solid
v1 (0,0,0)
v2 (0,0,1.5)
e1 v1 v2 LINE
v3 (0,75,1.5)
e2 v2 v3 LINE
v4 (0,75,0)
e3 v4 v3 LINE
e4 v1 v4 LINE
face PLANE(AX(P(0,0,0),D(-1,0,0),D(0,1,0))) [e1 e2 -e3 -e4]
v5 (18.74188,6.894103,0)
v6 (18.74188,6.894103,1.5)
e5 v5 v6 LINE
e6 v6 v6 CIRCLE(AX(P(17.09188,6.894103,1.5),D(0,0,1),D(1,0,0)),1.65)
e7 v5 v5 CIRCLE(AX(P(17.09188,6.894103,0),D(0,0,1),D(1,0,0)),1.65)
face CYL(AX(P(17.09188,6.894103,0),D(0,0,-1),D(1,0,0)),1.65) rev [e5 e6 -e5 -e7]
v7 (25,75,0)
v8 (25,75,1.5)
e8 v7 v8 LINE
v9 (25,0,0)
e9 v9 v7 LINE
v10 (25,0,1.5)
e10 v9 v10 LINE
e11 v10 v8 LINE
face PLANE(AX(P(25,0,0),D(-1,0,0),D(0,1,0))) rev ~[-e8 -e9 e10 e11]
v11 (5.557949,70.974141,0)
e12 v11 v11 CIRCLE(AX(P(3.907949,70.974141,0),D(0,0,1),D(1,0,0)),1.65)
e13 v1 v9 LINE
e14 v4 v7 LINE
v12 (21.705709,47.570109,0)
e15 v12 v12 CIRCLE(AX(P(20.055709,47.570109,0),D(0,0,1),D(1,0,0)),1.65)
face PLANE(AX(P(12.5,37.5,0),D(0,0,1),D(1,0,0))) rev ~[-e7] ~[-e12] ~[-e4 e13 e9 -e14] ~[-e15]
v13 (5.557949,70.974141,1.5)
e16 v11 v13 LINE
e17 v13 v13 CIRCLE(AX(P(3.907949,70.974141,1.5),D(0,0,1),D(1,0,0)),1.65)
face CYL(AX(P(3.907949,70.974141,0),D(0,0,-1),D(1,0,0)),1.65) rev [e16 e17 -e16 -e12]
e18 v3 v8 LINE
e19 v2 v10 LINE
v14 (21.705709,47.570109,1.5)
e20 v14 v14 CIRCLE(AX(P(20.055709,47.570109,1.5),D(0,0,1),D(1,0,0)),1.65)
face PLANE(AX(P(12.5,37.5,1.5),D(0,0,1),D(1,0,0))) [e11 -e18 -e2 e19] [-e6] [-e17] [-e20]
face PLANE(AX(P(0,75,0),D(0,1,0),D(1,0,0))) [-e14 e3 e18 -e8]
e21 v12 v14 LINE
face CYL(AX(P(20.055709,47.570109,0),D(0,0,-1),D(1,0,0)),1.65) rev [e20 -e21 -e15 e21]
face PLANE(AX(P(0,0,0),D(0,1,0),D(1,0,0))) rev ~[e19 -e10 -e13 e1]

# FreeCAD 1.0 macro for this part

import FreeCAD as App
import Part
import Sketcher

doc = App.newDocument("Part")
body = doc.addObject("PartDesign::Body", "Body")

sketch1 = body.newObject("Sketcher::SketchObject", "Sketch")
sketch1.AttachmentSupport = (doc.getObject("XY_Plane"), [""])
sketch1.MapMode = "FlatFace"
sketch1.addGeometry(Part.LineSegment(App.Vector(0, 75, 0), App.Vector(0, 0, 0)), False)
sketch1.addGeometry(Part.LineSegment(App.Vector(0, 0, 0), App.Vector(25, 0, 0)), False)
sketch1.addGeometry(Part.LineSegment(App.Vector(25, 0, 0), App.Vector(25, 75, 0)), False)
sketch1.addGeometry(Part.LineSegment(App.Vector(25, 75, 0), App.Vector(0, 75, 0)), False)
sketch1.addGeometry(Part.Circle(App.Vector(17.1, 6.9, 0), App.Vector(0, 0, 1), 1.6), False)
sketch1.addGeometry(Part.Circle(App.Vector(3.9, 71, 0), App.Vector(0, 0, 1), 1.6), False)
sketch1.addGeometry(Part.Circle(App.Vector(20.1, 47.6, 0), App.Vector(0, 0, 1), 1.6), False)
sketch1.addConstraint(Sketcher.Constraint("Coincident", 0, 2, 1, 1))
sketch1.addConstraint(Sketcher.Constraint("Coincident", 1, 2, 2, 1))
sketch1.addConstraint(Sketcher.Constraint("Coincident", 2, 2, 3, 1))
sketch1.addConstraint(Sketcher.Constraint("Coincident", 3, 2, 0, 1))
sketch1.addConstraint(Sketcher.Constraint("Vertical", 0))
sketch1.addConstraint(Sketcher.Constraint("Horizontal", 1))
sketch1.addConstraint(Sketcher.Constraint("Vertical", 2))
sketch1.addConstraint(Sketcher.Constraint("Horizontal", 3))
sketch1.addConstraint(Sketcher.Constraint("Coincident", 0, 2, -1, 1))
sketch1.addConstraint(Sketcher.Constraint("Equal", 4, 5))
sketch1.addConstraint(Sketcher.Constraint("Equal", 5, 6))
sketch1.addConstraint(Sketcher.Constraint("Diameter", 4, 3.3))
sketch1.addConstraint(Sketcher.Constraint("DistanceX", 1, 1, 1, 2, 25.0))
sketch1.addConstraint(Sketcher.Constraint("DistanceY", 0, 2, 0, 1, 75.0))
sketch1.addConstraint(Sketcher.Constraint("DistanceX", -1, 1, 4, 3, 17.09188))
sketch1.addConstraint(Sketcher.Constraint("DistanceX", -1, 1, 5, 3, 3.907949))
sketch1.addConstraint(Sketcher.Constraint("DistanceY", -1, 1, 5, 3, 70.974141))
sketch1.addConstraint(Sketcher.Constraint("DistanceX", -1, 1, 6, 3, 20.055709))
sketch1.addConstraint(Sketcher.Constraint("DistanceY", -1, 1, 6, 3, 47.570109))
sketch1.addConstraint(Sketcher.Constraint("DistanceY", 4, 3, 5, 3, 64.080038))
pad1 = body.newObject("PartDesign::Pad", "Pad")
pad1.Profile = sketch1
pad1.Length = 1.5

doc.recompute()
